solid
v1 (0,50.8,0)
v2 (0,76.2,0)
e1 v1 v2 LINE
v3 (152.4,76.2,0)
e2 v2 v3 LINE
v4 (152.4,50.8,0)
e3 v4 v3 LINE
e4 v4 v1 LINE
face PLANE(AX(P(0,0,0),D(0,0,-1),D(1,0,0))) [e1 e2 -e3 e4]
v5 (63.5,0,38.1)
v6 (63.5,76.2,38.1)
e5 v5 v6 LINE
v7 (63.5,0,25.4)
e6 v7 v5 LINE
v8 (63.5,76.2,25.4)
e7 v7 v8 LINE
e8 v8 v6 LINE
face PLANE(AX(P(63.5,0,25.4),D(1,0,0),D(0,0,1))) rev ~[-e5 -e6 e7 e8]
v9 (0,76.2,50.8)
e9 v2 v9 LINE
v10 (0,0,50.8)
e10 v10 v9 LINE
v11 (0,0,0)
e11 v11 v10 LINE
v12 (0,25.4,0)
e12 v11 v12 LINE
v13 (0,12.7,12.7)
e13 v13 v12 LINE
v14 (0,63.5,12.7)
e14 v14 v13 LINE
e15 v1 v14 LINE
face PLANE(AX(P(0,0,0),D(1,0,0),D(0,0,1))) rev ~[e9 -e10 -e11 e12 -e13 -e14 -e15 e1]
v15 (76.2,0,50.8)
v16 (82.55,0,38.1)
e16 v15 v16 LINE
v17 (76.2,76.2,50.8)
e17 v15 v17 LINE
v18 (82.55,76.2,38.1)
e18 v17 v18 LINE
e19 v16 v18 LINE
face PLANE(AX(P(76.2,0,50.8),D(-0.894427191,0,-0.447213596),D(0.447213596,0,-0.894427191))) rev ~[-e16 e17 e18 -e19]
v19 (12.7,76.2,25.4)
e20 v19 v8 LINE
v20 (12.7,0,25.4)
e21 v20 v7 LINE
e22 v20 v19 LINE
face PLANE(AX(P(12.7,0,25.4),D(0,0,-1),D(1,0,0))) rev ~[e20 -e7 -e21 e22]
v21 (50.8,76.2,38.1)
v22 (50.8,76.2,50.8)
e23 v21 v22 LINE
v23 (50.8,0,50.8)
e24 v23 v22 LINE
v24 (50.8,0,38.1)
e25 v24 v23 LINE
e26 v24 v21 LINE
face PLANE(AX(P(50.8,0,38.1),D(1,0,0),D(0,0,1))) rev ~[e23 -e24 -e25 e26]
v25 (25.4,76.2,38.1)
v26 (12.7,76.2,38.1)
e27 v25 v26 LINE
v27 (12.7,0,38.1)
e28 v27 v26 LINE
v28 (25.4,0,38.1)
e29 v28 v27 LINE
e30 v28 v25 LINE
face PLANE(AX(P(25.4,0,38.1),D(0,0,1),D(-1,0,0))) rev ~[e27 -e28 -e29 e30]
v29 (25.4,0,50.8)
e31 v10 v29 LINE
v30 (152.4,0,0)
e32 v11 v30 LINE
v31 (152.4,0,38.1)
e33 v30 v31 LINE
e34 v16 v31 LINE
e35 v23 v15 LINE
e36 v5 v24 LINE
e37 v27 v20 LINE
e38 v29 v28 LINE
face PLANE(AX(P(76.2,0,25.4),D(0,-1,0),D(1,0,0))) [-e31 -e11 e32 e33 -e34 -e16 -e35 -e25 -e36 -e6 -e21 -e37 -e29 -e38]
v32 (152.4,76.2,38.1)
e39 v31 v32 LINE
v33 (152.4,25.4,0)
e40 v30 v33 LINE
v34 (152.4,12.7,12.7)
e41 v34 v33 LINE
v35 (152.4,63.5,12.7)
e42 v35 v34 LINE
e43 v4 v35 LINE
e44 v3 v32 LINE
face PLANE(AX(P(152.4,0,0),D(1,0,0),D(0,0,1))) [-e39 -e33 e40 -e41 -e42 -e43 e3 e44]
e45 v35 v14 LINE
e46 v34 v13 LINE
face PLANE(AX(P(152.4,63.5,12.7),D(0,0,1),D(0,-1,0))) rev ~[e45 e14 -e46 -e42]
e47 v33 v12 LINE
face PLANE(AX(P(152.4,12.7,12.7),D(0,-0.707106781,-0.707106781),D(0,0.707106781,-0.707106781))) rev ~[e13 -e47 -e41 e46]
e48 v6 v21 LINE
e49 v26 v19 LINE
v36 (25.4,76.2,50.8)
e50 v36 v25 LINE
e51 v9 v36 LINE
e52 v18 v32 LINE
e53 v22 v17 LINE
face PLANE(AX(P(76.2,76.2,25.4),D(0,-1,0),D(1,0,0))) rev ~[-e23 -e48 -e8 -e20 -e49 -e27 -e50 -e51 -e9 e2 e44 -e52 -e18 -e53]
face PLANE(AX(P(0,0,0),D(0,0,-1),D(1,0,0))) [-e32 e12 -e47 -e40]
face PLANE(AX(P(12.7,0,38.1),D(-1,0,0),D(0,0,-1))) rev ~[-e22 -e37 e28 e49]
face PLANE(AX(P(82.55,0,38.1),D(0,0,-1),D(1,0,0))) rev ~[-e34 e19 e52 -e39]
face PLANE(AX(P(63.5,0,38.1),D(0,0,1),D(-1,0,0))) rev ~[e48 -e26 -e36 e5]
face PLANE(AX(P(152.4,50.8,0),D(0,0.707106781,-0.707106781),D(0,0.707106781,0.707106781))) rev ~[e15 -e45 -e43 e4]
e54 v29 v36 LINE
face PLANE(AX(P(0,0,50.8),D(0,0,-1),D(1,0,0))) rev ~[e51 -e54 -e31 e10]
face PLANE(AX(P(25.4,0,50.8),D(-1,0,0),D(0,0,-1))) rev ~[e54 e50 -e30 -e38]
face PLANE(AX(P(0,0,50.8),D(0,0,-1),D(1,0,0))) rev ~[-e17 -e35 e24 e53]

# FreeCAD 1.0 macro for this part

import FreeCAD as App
import Part
import Sketcher
from FreeCAD import Vector
Q = App.Units.Quantity

doc = App.newDocument("Part")
params = doc.addObject("Spreadsheet::Sheet", "Params")
for row, (alias, value) in enumerate([
    ("sketch1_width", "6 in"),
    ("sketch1_height", "2 in"),
    ("pad1_length", "3 in"),
    ("sketch2_width", "1 in"),
    ("sketch2_width2", "2 in"),
    ("pocket1_length", "3 in"),
    ("sketch3_height", "0.5 in"),
    ("sketch3_width", "2.75 in"),
    ("pocket2_length", "3 in"),
    ("sketch4_height", "0.5 in"),
    ("sketch4_width", "0.25 in"),
    ("pocket3_length", "3 in"),
    ("sketch5_width", "1 in"),
    ("sketch5_width2", "2 in"),
    ("pocket4_length", "6 in"),
], start=1):
    params.set(f"A{row}", alias)
    params.set(f"B{row}", "=" + value)
    params.setAlias(f"B{row}", alias)

body = doc.addObject("PartDesign::Body", "Body")

# Sketch on XZ plane
sketch1 = body.newObject("Sketcher::SketchObject", "Sketch")
sketch1.AttachmentSupport = (doc.getObject("XZ_Plane"), [""])
sketch1.MapMode = "FlatFace"
sketch1.addGeometry(Part.LineSegment(Vector(0, 51, 0), Vector(0, 0, 0)), False)
sketch1.addGeometry(Part.LineSegment(Vector(0, 0, 0), Vector(152, 0, 0)), False)
sketch1.addGeometry(Part.LineSegment(Vector(152, 0, 0), Vector(152, 51, 0)), False)
sketch1.addGeometry(Part.LineSegment(Vector(152, 51, 0), Vector(0, 51, 0)), False)
sketch1.addConstraint(Sketcher.Constraint("Coincident", 0, 2, 1, 1))
sketch1.addConstraint(Sketcher.Constraint("Coincident", 1, 2, 2, 1))
sketch1.addConstraint(Sketcher.Constraint("Coincident", 2, 2, 3, 1))
sketch1.addConstraint(Sketcher.Constraint("Coincident", 3, 2, 0, 1))
sketch1.addConstraint(Sketcher.Constraint("Vertical", 0))
sketch1.addConstraint(Sketcher.Constraint("Horizontal", 1))
sketch1.addConstraint(Sketcher.Constraint("Vertical", 2))
sketch1.addConstraint(Sketcher.Constraint("Horizontal", 3))
sketch1.addConstraint(Sketcher.Constraint("Coincident", 0, 2, -1, 1))
sketch1.addConstraint(Sketcher.Constraint("DistanceX", 1, 1, 1, 2, Q("6 in")))
sketch1.addConstraint(Sketcher.Constraint("DistanceY", 0, 2, 0, 1, Q("2 in")))
sketch1.setExpression("Constraints[9]", "Params.sketch1_width")
sketch1.setExpression("Constraints[10]", "Params.sketch1_height")
pad1 = body.newObject("PartDesign::Pad", "Pad")
pad1.Profile = sketch1
pad1.setExpression("Length", "Params.pad1_length")
pad1.Reversed = True

# Sketch on XZ plane
sketch2 = body.newObject("Sketcher::SketchObject", "Sketch001")
sketch2.AttachmentSupport = (doc.getObject("XZ_Plane"), [""])
sketch2.MapMode = "FlatFace"
sketch2.addGeometry(Part.LineSegment(Vector(51, 51, 0), Vector(25, 51, 0)), False)
sketch2.addGeometry(Part.LineSegment(Vector(25, 51, 0), Vector(25, 38, 0)), False)
sketch2.addGeometry(Part.LineSegment(Vector(25, 38, 0), Vector(13, 38, 0)), False)
sketch2.addGeometry(Part.LineSegment(Vector(13, 38, 0), Vector(13, 25, 0)), False)
sketch2.addGeometry(Part.LineSegment(Vector(13, 25, 0), Vector(64, 25, 0)), False)
sketch2.addGeometry(Part.LineSegment(Vector(64, 25, 0), Vector(64, 38, 0)), False)
sketch2.addGeometry(Part.LineSegment(Vector(64, 38, 0), Vector(51, 38, 0)), False)
sketch2.addGeometry(Part.LineSegment(Vector(51, 38, 0), Vector(51, 51, 0)), False)
sketch2.addConstraint(Sketcher.Constraint("Coincident", 0, 2, 1, 1))
sketch2.addConstraint(Sketcher.Constraint("Coincident", 1, 2, 2, 1))
sketch2.addConstraint(Sketcher.Constraint("Coincident", 2, 2, 3, 1))
sketch2.addConstraint(Sketcher.Constraint("Coincident", 3, 2, 4, 1))
sketch2.addConstraint(Sketcher.Constraint("Coincident", 4, 2, 5, 1))
sketch2.addConstraint(Sketcher.Constraint("Coincident", 5, 2, 6, 1))
sketch2.addConstraint(Sketcher.Constraint("Coincident", 6, 2, 7, 1))
sketch2.addConstraint(Sketcher.Constraint("Coincident", 7, 2, 0, 1))
sketch2.addConstraint(Sketcher.Constraint("Horizontal", 0))
sketch2.addConstraint(Sketcher.Constraint("Vertical", 1))
sketch2.addConstraint(Sketcher.Constraint("Horizontal", 2))
sketch2.addConstraint(Sketcher.Constraint("Vertical", 3))
sketch2.addConstraint(Sketcher.Constraint("Horizontal", 4))
sketch2.addConstraint(Sketcher.Constraint("Vertical", 5))
sketch2.addConstraint(Sketcher.Constraint("Horizontal", 6))
sketch2.addConstraint(Sketcher.Constraint("Vertical", 7))
sketch2.addConstraint(Sketcher.Constraint("Horizontal", 2, 2, 5, 2))
sketch2.addConstraint(Sketcher.Constraint("Equal", 2, 6))
sketch2.addConstraint(Sketcher.Constraint("Equal", 6, 1))
sketch2.addConstraint(Sketcher.Constraint("Equal", 1, 3))
sketch2.addConstraint(Sketcher.Constraint("DistanceX", 0, 2, 0, 1, Q("1 in")))
sketch2.addConstraint(Sketcher.Constraint("DistanceX", 4, 1, 4, 2, Q("2 in")))
sketch2.addConstraint(Sketcher.Constraint("DistanceX", -1, 1, 0, 2, Q("1 in")))
sketch2.addConstraint(Sketcher.Constraint("DistanceY", -1, 1, 0, 2, Q("2 in")))
sketch2.setExpression("Constraints[20]", "Params.sketch2_width")
sketch2.setExpression("Constraints[21]", "Params.sketch2_width2")
pocket1 = body.newObject("PartDesign::Pocket", "Pocket")
pocket1.Profile = sketch2
pocket1.setExpression("Length", "Params.pocket1_length")

# Sketch on XZ plane
sketch3 = body.newObject("Sketcher::SketchObject", "Sketch002")
sketch3.AttachmentSupport = (doc.getObject("XZ_Plane"), [""])
sketch3.MapMode = "FlatFace"
sketch3.addGeometry(Part.LineSegment(Vector(83, 51, 0), Vector(83, 38, 0)), False)
sketch3.addGeometry(Part.LineSegment(Vector(83, 38, 0), Vector(152, 38, 0)), False)
sketch3.addGeometry(Part.LineSegment(Vector(152, 38, 0), Vector(152, 51, 0)), False)
sketch3.addGeometry(Part.LineSegment(Vector(152, 51, 0), Vector(83, 51, 0)), False)
sketch3.addConstraint(Sketcher.Constraint("Coincident", 0, 2, 1, 1))
sketch3.addConstraint(Sketcher.Constraint("Coincident", 1, 2, 2, 1))
sketch3.addConstraint(Sketcher.Constraint("Coincident", 2, 2, 3, 1))
sketch3.addConstraint(Sketcher.Constraint("Coincident", 3, 2, 0, 1))
sketch3.addConstraint(Sketcher.Constraint("Vertical", 0))
sketch3.addConstraint(Sketcher.Constraint("Horizontal", 1))
sketch3.addConstraint(Sketcher.Constraint("Vertical", 2))
sketch3.addConstraint(Sketcher.Constraint("Horizontal", 3))
sketch3.addConstraint(Sketcher.Constraint("DistanceY", 0, 2, 0, 1, Q("0.5 in")))
sketch3.addConstraint(Sketcher.Constraint("DistanceX", -1, 1, 1, 2, Q("6 in")))
sketch3.addConstraint(Sketcher.Constraint("DistanceY", -1, 1, 2, 2, Q("2 in")))
sketch3.addConstraint(Sketcher.Constraint("DistanceX", 1, 1, 1, 2, Q("2.75 in")))
sketch3.setExpression("Constraints[8]", "Params.sketch3_height")
sketch3.setExpression("Constraints[11]", "Params.sketch3_width")
pocket2 = body.newObject("PartDesign::Pocket", "Pocket001")
pocket2.Profile = sketch3
pocket2.setExpression("Length", "Params.pocket2_length")

# Sketch on XZ plane
sketch4 = body.newObject("Sketcher::SketchObject", "Sketch003")
sketch4.AttachmentSupport = (doc.getObject("XZ_Plane"), [""])
sketch4.MapMode = "FlatFace"
sketch4.addGeometry(Part.LineSegment(Vector(76, 51, 0), Vector(83, 38, 0)), False)
sketch4.addGeometry(Part.LineSegment(Vector(83, 38, 0), Vector(83, 51, 0)), False)
sketch4.addGeometry(Part.LineSegment(Vector(83, 51, 0), Vector(76, 51, 0)), False)
sketch4.addConstraint(Sketcher.Constraint("Coincident", 0, 2, 1, 1))
sketch4.addConstraint(Sketcher.Constraint("Coincident", 1, 2, 2, 1))
sketch4.addConstraint(Sketcher.Constraint("Coincident", 2, 2, 0, 1))
sketch4.addConstraint(Sketcher.Constraint("Vertical", 1))
sketch4.addConstraint(Sketcher.Constraint("Horizontal", 2))
sketch4.addConstraint(Sketcher.Constraint("DistanceY", 1, 1, 1, 2, Q("0.5 in")))
sketch4.addConstraint(Sketcher.Constraint("DistanceY", -1, 1, 1, 2, Q("2 in")))
sketch4.addConstraint(Sketcher.Constraint("DistanceX", -1, 1, 2, 2, Q("3 in")))
sketch4.addConstraint(Sketcher.Constraint("DistanceX", 2, 2, 2, 1, Q("0.25 in")))
sketch4.setExpression("Constraints[5]", "Params.sketch4_height")
sketch4.setExpression("Constraints[8]", "Params.sketch4_width")
pocket3 = body.newObject("PartDesign::Pocket", "Pocket002")
pocket3.Profile = sketch4
pocket3.setExpression("Length", "Params.pocket3_length")

# Sketch on YZ plane
sketch5 = body.newObject("Sketcher::SketchObject", "Sketch004")
sketch5.AttachmentSupport = (doc.getObject("YZ_Plane"), [""])
sketch5.MapMode = "FlatFace"
sketch5.AttachmentOffset = App.Placement(Vector(0, 0, 6 * 25.4), App.Rotation())
sketch5.addGeometry(Part.LineSegment(Vector(13, 13, 0), Vector(25, 0, 0)), False)
sketch5.addGeometry(Part.LineSegment(Vector(25, 0, 0), Vector(51, 0, 0)), False)
sketch5.addGeometry(Part.LineSegment(Vector(51, 0, 0), Vector(64, 13, 0)), False)
sketch5.addGeometry(Part.LineSegment(Vector(64, 13, 0), Vector(13, 13, 0)), False)
sketch5.addConstraint(Sketcher.Constraint("Coincident", 0, 2, 1, 1))
sketch5.addConstraint(Sketcher.Constraint("Coincident", 1, 2, 2, 1))
sketch5.addConstraint(Sketcher.Constraint("Coincident", 2, 2, 3, 1))
sketch5.addConstraint(Sketcher.Constraint("Coincident", 3, 2, 0, 1))
sketch5.addConstraint(Sketcher.Constraint("Horizontal", 1))
sketch5.addConstraint(Sketcher.Constraint("Horizontal", 3))
sketch5.addConstraint(Sketcher.Constraint("PointOnObject", 0, 2, -1))
sketch5.addConstraint(Sketcher.Constraint("Perpendicular", 0, 2))
sketch5.addConstraint(Sketcher.Constraint("Equal", 0, 2))
sketch5.addConstraint(Sketcher.Constraint("DistanceX", 1, 1, 1, 2, Q("1 in")))
sketch5.addConstraint(Sketcher.Constraint("DistanceX", 3, 2, 3, 1, Q("2 in")))
sketch5.addConstraint(Sketcher.Constraint("DistanceX", -1, 1, 0, 2, Q("1 in")))
sketch5.setExpression("Constraints[9]", "Params.sketch5_width")
sketch5.setExpression("Constraints[10]", "Params.sketch5_width2")
pocket4 = body.newObject("PartDesign::Pocket", "Pocket003")
pocket4.Profile = sketch5
pocket4.setExpression("Length", "Params.pocket4_length")

doc.recompute()
